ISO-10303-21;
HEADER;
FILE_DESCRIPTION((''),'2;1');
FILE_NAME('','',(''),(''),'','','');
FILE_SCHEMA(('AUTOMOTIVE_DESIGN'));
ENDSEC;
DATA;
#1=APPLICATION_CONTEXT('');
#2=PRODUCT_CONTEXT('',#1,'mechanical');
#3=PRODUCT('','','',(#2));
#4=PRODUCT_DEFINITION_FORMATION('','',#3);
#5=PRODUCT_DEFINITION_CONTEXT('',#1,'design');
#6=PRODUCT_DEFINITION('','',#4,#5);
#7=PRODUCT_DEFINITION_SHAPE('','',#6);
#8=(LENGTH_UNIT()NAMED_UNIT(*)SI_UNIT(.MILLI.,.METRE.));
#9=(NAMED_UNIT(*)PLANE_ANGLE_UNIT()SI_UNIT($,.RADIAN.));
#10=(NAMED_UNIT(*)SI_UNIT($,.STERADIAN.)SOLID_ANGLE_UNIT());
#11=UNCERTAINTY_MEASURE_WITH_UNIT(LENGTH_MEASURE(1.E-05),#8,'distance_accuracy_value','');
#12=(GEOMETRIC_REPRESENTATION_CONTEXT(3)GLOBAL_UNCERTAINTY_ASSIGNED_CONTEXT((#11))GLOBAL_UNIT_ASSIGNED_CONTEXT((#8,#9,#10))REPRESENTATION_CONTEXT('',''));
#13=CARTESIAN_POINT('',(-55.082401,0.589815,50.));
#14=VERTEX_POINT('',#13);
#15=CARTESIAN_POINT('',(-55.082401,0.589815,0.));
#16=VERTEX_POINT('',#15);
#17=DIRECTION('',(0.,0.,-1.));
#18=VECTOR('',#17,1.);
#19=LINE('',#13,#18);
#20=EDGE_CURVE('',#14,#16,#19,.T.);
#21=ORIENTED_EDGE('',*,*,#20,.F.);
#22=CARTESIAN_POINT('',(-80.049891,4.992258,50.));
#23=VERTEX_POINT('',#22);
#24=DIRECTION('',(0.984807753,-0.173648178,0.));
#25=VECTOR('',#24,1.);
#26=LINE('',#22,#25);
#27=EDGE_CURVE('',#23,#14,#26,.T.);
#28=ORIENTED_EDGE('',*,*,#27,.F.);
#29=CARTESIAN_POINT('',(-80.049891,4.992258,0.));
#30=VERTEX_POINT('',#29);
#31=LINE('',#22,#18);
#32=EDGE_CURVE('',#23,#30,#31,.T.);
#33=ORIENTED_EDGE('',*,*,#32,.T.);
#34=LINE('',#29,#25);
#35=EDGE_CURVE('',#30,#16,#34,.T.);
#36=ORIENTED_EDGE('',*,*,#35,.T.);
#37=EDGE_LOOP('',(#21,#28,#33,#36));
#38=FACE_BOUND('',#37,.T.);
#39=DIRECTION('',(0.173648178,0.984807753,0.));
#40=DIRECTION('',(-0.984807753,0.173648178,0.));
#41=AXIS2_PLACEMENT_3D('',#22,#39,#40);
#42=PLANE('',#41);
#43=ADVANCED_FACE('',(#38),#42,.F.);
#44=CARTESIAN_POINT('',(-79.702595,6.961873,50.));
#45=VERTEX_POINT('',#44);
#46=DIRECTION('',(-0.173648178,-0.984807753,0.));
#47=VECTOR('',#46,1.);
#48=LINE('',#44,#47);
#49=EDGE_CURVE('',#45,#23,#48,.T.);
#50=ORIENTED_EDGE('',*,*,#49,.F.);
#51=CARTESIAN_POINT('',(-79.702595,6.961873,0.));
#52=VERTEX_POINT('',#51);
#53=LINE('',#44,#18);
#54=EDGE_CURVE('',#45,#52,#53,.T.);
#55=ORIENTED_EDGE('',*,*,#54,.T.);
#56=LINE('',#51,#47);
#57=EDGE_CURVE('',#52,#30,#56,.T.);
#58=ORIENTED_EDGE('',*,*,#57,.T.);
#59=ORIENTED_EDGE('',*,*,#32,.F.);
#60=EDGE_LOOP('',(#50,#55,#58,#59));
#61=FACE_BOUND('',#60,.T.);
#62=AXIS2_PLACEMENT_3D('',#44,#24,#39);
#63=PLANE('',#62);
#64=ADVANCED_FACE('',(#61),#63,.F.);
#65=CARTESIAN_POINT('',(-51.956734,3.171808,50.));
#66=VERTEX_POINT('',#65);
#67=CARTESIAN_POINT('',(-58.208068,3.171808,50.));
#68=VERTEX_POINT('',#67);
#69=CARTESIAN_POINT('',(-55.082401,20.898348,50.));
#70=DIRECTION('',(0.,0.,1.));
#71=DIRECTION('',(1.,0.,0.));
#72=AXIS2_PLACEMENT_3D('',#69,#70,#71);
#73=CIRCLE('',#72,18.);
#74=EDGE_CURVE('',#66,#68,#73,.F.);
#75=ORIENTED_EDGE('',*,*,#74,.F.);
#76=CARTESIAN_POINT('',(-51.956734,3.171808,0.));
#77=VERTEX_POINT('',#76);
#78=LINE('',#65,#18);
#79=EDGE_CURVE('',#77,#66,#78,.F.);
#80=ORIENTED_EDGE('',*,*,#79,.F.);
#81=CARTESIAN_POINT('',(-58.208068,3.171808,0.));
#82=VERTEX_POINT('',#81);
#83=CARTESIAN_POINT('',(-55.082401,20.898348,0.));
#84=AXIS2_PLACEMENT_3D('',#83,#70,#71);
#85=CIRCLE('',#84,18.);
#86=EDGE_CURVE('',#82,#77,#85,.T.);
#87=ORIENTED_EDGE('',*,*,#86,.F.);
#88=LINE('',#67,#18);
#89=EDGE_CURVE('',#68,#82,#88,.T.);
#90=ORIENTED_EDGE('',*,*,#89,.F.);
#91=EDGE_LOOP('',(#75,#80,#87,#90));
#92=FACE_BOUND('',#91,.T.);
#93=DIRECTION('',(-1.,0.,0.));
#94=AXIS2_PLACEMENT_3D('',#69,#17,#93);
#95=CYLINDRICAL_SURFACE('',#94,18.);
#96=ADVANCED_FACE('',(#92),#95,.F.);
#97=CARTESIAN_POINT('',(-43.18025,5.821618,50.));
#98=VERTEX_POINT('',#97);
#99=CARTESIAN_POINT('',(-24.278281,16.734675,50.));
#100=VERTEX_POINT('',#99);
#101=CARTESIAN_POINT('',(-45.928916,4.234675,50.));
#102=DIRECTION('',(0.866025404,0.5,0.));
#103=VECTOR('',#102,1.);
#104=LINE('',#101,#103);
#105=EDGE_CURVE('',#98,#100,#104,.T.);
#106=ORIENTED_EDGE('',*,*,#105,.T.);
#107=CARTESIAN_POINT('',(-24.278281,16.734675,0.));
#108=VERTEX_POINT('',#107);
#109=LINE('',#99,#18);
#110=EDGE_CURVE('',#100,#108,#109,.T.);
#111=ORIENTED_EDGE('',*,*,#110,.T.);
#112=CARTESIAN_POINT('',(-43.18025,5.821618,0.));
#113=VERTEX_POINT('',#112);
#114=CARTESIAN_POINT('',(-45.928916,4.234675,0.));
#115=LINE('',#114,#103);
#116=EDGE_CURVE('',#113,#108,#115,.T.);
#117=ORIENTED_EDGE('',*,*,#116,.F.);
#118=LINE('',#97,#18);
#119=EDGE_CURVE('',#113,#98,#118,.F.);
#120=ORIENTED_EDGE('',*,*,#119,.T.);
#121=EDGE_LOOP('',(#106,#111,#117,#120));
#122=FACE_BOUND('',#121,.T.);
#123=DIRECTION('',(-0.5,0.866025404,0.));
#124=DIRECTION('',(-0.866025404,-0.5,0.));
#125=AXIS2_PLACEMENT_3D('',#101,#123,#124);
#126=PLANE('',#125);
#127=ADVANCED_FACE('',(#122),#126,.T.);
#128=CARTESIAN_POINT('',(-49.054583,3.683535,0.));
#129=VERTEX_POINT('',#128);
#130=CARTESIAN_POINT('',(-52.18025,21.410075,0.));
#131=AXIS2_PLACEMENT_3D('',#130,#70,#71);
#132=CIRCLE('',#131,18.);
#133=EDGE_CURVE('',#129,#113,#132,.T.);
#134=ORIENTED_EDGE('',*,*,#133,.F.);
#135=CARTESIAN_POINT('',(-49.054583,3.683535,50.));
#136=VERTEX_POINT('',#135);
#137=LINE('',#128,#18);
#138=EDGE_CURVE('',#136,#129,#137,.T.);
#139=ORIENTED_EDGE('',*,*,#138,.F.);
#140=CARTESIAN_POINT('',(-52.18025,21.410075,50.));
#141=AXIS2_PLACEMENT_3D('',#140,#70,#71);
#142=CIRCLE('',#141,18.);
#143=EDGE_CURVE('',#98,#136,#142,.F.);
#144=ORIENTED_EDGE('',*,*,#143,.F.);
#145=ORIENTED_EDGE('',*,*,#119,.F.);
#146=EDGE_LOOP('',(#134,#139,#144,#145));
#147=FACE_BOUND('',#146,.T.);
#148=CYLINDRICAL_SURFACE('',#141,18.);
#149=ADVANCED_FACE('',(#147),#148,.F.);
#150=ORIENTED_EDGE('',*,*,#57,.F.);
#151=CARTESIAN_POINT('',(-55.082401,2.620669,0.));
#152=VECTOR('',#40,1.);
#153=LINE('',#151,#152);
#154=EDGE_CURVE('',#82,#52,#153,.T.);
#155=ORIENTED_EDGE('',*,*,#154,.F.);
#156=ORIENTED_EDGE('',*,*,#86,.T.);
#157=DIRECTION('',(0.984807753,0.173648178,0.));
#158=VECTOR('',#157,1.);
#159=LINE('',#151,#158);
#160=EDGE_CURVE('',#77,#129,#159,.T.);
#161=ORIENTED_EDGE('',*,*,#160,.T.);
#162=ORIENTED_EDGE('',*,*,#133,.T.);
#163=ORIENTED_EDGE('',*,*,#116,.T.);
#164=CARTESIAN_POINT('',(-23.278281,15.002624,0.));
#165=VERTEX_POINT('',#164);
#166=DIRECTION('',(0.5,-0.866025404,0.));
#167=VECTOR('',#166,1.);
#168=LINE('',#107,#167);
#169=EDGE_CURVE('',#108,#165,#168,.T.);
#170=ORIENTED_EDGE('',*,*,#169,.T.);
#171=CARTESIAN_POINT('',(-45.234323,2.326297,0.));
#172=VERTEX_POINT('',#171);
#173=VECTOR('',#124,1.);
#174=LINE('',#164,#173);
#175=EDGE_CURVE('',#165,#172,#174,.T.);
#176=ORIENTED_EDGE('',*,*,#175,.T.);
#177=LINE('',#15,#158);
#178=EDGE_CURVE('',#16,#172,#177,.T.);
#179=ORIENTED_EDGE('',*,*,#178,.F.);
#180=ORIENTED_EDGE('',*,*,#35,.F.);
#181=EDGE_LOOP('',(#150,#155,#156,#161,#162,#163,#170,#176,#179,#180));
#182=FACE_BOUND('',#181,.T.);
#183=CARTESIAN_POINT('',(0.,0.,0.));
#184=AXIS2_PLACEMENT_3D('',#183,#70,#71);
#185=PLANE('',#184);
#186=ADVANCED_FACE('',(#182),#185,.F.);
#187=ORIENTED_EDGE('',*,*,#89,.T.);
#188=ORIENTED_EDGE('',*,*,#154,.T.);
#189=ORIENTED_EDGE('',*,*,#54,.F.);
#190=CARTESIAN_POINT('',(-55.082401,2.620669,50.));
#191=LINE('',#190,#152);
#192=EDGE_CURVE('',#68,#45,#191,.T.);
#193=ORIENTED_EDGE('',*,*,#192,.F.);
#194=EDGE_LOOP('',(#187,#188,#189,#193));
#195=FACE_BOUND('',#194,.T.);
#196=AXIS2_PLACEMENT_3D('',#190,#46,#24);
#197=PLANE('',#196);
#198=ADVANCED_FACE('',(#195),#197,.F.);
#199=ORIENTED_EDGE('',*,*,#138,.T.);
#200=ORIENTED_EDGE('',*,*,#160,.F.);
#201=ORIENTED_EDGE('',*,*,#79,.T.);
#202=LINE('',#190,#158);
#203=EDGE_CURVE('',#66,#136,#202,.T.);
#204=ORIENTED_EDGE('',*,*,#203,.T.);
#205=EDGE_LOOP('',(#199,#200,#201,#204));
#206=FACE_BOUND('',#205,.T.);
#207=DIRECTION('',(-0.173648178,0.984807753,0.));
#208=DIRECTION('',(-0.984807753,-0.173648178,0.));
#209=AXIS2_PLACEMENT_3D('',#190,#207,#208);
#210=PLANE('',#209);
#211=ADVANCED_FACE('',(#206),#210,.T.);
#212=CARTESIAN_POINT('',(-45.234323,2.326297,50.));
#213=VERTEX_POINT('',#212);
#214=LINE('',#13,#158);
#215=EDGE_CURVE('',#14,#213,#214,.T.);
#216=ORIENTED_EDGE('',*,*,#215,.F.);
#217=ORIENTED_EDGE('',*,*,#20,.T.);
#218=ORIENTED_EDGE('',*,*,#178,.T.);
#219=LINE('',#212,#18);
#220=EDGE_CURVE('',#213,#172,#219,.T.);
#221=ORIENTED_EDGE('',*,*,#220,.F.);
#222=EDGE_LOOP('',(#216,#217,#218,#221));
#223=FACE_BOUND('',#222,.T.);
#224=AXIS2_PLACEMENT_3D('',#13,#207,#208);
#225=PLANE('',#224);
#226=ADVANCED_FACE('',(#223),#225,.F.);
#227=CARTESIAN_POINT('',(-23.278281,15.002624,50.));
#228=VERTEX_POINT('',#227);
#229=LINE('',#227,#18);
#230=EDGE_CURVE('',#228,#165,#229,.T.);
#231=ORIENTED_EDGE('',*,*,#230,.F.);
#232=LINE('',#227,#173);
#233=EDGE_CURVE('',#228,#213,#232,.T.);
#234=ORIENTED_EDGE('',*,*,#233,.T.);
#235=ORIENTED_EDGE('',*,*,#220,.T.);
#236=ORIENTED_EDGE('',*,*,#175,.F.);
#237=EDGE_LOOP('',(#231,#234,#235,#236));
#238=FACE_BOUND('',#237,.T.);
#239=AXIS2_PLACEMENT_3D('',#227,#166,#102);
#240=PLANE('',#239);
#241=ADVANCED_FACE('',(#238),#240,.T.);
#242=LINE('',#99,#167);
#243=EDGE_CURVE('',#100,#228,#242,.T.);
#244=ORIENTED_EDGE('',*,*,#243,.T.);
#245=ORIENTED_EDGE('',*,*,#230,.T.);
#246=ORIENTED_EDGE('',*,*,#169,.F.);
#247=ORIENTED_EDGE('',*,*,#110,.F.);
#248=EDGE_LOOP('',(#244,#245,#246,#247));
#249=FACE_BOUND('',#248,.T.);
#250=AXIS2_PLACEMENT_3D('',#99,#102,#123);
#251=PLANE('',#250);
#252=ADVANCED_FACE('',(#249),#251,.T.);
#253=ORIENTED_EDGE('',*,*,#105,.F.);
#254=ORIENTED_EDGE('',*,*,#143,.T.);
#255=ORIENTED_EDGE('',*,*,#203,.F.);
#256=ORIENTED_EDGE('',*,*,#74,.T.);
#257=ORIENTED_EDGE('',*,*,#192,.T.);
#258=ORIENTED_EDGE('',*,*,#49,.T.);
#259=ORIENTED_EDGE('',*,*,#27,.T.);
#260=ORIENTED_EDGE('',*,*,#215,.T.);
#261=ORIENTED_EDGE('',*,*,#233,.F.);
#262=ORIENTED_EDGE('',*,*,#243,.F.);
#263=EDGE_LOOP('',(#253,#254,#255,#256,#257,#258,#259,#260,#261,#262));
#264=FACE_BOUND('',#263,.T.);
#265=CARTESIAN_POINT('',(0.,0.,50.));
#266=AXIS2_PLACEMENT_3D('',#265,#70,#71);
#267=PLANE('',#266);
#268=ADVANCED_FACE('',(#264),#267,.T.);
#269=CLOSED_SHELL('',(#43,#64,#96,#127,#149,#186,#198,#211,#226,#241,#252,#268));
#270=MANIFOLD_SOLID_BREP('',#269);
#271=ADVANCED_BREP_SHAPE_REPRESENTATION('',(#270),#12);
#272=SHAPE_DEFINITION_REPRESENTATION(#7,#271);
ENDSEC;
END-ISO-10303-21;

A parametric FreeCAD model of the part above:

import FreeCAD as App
import Part
import Sketcher

V = App.Vector
Q = App.Units.Quantity


def edges_at(feature, points):
    """Names of the edges that pass closest to the given points."""
    edges = feature.Shape.Edges
    near = lambda p: min(range(len(edges)), key=lambda i: edges[i].distToShape(Part.Vertex(*p))[0])
    return sorted({f"Edge{near(p) + 1}" for p in points})


def add_polygon(sketch, points):
    """Adds a closed chain of lines whose ends are joined by coincident constraints."""
    first, n = sketch.GeometryCount, len(points)
    for a, b in zip(points, points[1:] + points[:1]):
        sketch.addGeometry(Part.LineSegment(App.Vector(*a, 0), App.Vector(*b, 0)), False)
    for i in range(n):
        sketch.addConstraint(Sketcher.Constraint("Coincident", first + i, 2, first + (i + 1) % n, 1))

doc = App.newDocument("Part")
params = doc.addObject("Spreadsheet::Sheet", "Params")
for row, (alias, value) in enumerate([
    ("sketch1_length", "25 mm"),
    ("sketch1_length2", "2 mm"),
    ("sketch1_length3", "10 mm"),
    ("pad1_length", "50 mm"),
    ("fillet_radius", "18 mm"),
], start=1):
    params.set(f"A{row}", alias)
    params.set(f"B{row}", "=" + value)
    params.setAlias(f"B{row}", alias)

body = doc.addObject("PartDesign::Body", "Body")

# Sketch on XY plane
sketch1 = doc.addObject("Sketcher::SketchObject", "Sketch")
body.addObject(sketch1)
sketch1.AttachmentSupport = (doc.XY_Plane, [""])
sketch1.MapMode = "FlatFace"
add_polygon(sketch1, [(-24.3, 16.7), (-45.9, 4.2), (-55.1, 2.6), (-79.7, 7), (-80, 5), (-55.1, 0.6), (-45.2, 2.3), (-23.3, 15)])  # lines 0-7
sketch1.addConstraint([
    Sketcher.Constraint("Perpendicular", 2, 3),
    Sketcher.Constraint("Perpendicular", 3, 4),
    Sketcher.Constraint("Parallel", 1, 5),
    Sketcher.Constraint("Parallel", 0, 6),
    Sketcher.Constraint("Perpendicular", 6, 7),
    Sketcher.Constraint("Vertical", 1, 2, 4, 2),
    Sketcher.Constraint("Equal", 0, 2),
    Sketcher.Constraint("Equal", 4, 6),
    Sketcher.Constraint("Equal", 3, 7),
    Sketcher.Constraint("Angle", 0, Q("-150 deg")),
    Sketcher.Constraint("Angle", 1, Q("-170 deg")),
    Sketcher.Constraint("Distance", 0, 25.0),
    Sketcher.Constraint("Distance", 3, 2.0),
    Sketcher.Constraint("Distance", 5, 10.0),
    Sketcher.Constraint("DistanceX", 1, 2, -1, 1, 55.082401),
    Sketcher.Constraint("DistanceY", -1, 1, 1, 2, 2.620669),
])
sketch1.setExpression("Constraints[19]", "Params.sketch1_length")
sketch1.setExpression("Constraints[20]", "Params.sketch1_length2")
sketch1.setExpression("Constraints[21]", "Params.sketch1_length3")
pad1 = doc.addObject("PartDesign::Pad", "Pad")
body.addObject(pad1)
pad1.Profile = sketch1
pad1.setExpression("Length", "Params.pad1_length")
doc.recompute()

fillet = doc.addObject("PartDesign::Fillet", "Fillet")
body.addObject(fillet)
fillet.Base = (pad1, edges_at(pad1, [(-55.082, 2.621, 25), (-45.929, 4.235, 25)]))
fillet.setExpression("Radius", "Params.fillet_radius")

doc.recompute()
